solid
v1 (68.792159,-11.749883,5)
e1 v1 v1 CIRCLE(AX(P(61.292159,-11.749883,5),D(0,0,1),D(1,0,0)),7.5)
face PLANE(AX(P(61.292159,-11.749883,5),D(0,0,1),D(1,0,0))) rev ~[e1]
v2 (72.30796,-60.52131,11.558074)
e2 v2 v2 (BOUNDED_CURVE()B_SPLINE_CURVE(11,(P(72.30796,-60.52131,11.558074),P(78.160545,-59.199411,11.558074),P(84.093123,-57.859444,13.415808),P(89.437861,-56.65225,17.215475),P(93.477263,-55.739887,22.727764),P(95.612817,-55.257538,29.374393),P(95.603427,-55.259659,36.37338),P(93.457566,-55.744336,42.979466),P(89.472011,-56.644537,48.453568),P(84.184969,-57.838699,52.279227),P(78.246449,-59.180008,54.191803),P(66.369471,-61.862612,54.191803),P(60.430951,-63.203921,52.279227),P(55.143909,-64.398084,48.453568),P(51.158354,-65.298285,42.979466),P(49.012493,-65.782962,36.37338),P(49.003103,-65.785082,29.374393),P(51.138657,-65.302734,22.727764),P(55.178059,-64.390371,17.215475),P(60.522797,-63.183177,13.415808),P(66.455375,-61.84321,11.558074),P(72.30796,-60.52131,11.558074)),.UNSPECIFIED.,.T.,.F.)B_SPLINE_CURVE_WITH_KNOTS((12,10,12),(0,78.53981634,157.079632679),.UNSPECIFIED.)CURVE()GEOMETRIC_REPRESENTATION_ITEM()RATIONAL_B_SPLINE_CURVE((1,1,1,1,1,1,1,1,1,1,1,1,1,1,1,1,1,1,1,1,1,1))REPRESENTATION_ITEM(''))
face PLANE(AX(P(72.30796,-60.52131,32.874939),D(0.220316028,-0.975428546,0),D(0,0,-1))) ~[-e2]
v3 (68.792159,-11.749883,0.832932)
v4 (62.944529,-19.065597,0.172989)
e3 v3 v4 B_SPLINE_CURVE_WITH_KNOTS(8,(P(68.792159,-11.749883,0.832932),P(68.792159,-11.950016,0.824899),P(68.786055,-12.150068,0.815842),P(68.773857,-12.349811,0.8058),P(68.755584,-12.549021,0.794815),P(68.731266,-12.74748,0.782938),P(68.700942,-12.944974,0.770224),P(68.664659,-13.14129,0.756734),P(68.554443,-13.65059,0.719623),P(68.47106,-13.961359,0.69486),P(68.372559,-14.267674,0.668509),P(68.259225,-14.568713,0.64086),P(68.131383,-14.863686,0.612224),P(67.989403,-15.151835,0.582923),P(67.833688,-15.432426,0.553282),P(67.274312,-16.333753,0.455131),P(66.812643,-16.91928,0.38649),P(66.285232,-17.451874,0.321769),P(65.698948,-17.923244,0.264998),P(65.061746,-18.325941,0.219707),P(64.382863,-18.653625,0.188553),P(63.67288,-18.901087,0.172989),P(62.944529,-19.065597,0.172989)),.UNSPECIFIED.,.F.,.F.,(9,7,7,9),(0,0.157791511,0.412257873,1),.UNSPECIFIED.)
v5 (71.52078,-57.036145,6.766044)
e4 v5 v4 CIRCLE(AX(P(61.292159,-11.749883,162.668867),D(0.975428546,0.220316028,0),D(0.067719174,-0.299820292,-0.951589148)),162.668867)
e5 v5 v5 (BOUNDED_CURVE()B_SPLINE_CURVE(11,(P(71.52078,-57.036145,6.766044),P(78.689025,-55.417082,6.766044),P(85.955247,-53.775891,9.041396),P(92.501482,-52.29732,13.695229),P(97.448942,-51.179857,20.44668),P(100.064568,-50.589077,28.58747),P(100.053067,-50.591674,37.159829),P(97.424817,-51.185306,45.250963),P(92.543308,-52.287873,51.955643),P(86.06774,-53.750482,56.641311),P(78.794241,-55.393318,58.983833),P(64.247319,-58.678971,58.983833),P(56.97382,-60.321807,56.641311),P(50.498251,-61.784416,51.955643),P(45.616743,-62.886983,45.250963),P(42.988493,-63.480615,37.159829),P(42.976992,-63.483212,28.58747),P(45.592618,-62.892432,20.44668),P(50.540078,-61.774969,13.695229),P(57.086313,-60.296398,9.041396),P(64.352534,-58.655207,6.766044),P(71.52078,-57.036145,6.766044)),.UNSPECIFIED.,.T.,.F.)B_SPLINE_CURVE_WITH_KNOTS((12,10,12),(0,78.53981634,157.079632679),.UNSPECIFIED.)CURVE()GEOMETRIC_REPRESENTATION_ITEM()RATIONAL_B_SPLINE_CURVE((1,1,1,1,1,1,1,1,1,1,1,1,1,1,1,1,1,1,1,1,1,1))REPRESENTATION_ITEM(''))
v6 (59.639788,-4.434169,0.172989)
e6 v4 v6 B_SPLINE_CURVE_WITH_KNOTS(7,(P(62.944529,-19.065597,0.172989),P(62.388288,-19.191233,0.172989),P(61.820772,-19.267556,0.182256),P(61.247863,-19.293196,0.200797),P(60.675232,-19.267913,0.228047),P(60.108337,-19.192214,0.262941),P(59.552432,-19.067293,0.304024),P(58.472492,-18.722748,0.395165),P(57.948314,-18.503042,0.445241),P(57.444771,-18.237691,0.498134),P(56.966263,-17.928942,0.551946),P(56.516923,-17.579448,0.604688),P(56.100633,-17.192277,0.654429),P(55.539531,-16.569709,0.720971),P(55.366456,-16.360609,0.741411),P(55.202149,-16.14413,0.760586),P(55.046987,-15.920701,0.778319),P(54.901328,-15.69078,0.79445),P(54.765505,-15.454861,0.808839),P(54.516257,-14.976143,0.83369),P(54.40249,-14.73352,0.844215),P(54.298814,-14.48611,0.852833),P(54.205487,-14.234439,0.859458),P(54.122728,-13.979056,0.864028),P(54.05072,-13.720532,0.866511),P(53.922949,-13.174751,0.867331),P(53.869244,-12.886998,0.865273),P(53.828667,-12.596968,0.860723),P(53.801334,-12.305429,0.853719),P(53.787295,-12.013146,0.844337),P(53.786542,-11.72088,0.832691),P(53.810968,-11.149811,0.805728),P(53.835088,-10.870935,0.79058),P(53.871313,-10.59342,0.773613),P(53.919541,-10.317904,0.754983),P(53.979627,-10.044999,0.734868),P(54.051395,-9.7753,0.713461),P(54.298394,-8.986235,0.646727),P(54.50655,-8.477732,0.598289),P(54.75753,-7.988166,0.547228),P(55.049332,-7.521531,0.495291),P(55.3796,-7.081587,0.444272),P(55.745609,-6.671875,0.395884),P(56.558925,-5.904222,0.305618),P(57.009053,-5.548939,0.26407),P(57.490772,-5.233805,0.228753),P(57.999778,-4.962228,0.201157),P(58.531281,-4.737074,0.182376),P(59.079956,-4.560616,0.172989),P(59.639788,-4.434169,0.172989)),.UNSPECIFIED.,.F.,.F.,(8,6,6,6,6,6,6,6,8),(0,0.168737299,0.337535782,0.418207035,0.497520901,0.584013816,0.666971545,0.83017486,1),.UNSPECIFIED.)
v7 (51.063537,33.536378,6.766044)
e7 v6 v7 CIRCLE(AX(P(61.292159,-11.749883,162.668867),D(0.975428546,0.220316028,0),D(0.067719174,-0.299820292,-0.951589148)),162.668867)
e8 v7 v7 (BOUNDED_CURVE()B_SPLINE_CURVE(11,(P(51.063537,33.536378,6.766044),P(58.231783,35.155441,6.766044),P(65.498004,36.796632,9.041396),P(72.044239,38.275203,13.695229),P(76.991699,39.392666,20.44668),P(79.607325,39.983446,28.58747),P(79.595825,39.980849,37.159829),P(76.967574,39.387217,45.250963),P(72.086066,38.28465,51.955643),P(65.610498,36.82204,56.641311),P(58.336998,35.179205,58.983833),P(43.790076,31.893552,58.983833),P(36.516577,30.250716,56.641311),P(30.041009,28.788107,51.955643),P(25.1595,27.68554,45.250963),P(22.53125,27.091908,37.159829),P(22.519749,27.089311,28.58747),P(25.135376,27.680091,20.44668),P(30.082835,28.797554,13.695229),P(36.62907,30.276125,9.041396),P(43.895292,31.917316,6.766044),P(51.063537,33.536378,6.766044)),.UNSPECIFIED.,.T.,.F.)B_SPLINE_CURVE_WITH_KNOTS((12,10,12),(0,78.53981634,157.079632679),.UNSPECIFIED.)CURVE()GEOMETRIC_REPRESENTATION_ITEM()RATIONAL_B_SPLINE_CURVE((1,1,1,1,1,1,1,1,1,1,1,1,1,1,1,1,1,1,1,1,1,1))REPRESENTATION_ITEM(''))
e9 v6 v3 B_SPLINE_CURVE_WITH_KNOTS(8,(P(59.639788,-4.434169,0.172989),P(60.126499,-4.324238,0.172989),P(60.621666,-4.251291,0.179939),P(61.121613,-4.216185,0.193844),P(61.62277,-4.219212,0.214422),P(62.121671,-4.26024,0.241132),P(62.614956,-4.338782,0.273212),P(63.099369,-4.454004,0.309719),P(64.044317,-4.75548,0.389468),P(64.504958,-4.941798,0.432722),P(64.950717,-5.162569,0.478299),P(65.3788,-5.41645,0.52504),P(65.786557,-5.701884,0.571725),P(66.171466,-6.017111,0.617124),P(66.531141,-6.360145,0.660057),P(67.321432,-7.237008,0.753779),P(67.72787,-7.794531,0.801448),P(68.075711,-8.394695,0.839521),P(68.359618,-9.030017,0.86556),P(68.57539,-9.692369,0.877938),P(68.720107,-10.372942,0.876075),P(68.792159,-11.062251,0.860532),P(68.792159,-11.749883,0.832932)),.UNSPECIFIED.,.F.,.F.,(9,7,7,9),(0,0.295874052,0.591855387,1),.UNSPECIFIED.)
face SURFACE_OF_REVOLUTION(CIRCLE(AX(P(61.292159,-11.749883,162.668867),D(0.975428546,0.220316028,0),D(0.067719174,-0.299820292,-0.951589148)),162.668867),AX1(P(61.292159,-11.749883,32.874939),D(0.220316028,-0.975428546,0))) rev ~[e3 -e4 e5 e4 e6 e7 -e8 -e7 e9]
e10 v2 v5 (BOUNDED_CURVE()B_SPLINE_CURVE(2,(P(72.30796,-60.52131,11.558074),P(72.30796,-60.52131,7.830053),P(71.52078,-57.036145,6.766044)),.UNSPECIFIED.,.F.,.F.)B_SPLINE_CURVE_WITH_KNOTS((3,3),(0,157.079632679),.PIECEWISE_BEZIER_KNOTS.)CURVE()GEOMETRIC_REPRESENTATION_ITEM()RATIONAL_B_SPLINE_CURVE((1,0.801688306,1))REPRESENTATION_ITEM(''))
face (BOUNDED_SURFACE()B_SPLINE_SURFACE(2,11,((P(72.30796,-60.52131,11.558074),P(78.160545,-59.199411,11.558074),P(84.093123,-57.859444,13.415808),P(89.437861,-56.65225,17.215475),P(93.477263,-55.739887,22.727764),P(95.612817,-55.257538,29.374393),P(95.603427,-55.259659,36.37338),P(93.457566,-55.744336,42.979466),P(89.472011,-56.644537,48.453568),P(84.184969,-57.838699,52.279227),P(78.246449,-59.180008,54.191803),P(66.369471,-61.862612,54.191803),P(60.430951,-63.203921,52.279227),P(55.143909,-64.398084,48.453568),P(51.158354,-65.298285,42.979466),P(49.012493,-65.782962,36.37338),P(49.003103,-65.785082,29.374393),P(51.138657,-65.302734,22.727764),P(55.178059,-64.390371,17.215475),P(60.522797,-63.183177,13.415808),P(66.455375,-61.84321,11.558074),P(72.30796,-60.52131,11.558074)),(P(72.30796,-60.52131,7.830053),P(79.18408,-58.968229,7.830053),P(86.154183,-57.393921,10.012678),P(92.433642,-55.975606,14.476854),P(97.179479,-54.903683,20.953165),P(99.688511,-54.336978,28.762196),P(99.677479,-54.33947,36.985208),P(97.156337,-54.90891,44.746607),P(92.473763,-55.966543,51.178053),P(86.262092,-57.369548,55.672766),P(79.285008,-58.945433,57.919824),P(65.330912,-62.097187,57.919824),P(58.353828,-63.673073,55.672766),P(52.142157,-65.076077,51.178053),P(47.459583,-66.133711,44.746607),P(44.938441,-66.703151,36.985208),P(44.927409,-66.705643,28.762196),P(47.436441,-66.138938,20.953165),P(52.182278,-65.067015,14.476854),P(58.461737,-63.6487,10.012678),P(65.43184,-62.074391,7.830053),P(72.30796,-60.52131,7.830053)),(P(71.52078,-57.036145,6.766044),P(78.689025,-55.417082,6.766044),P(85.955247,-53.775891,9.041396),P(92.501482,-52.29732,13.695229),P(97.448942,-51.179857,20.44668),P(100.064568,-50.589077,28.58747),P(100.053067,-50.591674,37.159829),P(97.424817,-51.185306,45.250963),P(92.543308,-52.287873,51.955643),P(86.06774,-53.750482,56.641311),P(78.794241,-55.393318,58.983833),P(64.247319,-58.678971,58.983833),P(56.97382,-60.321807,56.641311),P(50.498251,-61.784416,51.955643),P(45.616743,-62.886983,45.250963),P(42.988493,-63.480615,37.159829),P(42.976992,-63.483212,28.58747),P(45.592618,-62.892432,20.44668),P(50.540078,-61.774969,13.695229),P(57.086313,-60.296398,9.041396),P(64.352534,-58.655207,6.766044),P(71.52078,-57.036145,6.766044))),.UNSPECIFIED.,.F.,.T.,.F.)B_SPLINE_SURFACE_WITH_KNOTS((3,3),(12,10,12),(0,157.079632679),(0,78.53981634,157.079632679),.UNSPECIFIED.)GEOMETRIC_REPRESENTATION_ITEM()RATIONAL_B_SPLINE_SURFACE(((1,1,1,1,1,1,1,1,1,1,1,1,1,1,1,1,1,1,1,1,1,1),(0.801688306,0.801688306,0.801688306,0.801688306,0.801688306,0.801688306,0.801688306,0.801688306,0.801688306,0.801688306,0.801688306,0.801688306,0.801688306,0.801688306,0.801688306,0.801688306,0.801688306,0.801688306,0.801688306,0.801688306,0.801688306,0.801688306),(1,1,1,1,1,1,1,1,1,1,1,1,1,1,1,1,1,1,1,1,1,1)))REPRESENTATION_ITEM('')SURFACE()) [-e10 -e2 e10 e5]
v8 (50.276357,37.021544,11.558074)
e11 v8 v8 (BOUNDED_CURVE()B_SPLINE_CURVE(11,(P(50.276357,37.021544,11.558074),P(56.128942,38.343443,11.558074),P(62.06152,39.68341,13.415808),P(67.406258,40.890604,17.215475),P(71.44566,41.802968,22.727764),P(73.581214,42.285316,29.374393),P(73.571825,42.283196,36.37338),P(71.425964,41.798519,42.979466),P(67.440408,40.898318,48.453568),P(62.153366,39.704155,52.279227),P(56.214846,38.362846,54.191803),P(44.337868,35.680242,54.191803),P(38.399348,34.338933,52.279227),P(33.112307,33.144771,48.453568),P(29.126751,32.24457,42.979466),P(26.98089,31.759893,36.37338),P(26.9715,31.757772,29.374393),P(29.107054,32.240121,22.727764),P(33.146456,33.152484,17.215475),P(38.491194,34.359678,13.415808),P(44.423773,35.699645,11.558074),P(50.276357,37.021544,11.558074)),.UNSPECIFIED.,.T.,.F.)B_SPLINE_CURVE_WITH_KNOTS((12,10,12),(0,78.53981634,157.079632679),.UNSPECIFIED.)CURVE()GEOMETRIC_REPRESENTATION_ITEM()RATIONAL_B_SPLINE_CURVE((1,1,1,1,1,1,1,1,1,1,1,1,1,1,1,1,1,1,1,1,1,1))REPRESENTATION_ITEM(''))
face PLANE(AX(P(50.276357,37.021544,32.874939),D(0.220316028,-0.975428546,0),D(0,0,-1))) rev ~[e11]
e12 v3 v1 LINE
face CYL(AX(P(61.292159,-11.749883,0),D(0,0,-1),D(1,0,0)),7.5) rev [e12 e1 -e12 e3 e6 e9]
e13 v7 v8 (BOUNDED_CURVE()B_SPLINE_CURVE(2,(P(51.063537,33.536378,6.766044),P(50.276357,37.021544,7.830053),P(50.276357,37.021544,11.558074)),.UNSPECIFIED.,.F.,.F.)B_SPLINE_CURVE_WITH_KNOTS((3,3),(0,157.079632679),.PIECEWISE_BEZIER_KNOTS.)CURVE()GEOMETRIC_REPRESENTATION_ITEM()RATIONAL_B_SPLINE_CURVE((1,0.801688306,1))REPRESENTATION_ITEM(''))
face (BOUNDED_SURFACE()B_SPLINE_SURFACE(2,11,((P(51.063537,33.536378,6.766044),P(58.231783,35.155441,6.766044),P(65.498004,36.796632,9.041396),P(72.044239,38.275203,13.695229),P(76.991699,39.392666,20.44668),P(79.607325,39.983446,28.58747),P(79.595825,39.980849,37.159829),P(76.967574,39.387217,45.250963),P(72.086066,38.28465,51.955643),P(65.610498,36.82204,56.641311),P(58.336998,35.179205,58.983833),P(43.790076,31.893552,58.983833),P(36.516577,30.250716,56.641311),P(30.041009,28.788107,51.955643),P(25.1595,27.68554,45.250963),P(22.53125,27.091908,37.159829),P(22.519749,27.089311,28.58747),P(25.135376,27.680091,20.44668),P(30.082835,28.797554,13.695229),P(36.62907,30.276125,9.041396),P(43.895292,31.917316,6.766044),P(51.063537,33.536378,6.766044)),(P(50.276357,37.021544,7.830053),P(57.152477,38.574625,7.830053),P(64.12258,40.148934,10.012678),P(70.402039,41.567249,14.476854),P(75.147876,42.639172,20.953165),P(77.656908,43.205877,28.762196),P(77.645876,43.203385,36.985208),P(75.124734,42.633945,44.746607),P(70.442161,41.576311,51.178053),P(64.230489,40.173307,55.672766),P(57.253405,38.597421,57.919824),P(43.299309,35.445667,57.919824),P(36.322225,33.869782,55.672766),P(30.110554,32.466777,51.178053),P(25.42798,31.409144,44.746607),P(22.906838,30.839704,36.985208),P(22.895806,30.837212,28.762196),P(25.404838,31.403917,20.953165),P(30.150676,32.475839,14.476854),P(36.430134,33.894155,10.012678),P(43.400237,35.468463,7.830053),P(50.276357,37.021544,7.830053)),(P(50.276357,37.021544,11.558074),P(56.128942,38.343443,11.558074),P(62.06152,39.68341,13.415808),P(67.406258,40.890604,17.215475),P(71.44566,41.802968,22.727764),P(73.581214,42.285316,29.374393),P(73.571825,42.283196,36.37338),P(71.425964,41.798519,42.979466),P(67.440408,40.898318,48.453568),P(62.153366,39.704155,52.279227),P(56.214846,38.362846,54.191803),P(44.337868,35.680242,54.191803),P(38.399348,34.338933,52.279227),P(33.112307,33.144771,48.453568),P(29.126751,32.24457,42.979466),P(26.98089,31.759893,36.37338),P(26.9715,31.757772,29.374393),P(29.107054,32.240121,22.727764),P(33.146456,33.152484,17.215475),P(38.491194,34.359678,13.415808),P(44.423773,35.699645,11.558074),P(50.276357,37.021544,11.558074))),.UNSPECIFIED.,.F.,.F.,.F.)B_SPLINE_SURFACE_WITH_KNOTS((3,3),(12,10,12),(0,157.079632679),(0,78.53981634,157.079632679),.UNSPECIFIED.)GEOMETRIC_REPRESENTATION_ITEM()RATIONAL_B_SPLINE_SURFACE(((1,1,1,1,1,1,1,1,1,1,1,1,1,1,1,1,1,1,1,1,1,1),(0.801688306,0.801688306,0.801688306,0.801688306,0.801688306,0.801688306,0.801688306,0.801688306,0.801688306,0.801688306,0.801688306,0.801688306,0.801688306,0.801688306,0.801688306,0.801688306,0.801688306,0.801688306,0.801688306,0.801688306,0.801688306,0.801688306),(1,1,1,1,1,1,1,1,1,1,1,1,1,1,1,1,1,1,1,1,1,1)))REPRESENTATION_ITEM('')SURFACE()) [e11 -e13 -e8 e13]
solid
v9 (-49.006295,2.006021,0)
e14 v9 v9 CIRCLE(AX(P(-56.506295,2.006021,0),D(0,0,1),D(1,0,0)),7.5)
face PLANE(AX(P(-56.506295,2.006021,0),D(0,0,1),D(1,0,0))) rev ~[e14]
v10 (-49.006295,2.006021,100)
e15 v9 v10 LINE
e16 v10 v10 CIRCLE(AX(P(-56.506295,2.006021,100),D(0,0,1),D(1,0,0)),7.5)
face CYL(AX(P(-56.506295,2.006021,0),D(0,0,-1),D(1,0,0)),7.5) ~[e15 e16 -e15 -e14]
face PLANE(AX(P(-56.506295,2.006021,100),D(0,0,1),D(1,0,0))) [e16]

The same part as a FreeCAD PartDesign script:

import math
import FreeCAD as App
import Part
import Sketcher
from FreeCAD import Vector


def edges_at(feature, points):
    """Names of the edges that pass closest to the given points."""
    edges = feature.Shape.Edges
    near = lambda p: min(range(len(edges)), key=lambda i: edges[i].distToShape(Part.Vertex(*p))[0])
    return sorted({f"Edge{near(p) + 1}" for p in points})

doc = App.newDocument("Part")
body = doc.addObject("PartDesign::Body", "Body")

sketch1 = body.newObject("Sketcher::SketchObject", "Sketch")
sketch1.AttachmentSupport = (doc.getObject("XY_Plane"), [""])
sketch1.MapMode = "FlatFace"
sketch1.addGeometry(Part.Circle(Vector(-57, 2, 0), Vector(0, 0, 1), 8), False)
sketch1.addConstraint([
    Sketcher.Constraint("Diameter", 0, 15.0),
    Sketcher.Constraint("DistanceY", -1, 1, 0, 3, 2.006021),
    Sketcher.Constraint("DistanceX", 0, 3, -1, 1, 56.506295),
])
pad1 = body.newObject("PartDesign::Pad", "Pad")
pad1.Profile = sketch1
pad1.Length = 100
body2 = doc.addObject("PartDesign::Body", "Body001")

sketch2 = body2.newObject("Sketcher::SketchObject", "Sketch001")
sketch2.Placement = App.Placement(Vector(55.792009, 12.601511, 0), App.Rotation(Vector(-0.220316028, 0.975428546, 0), Vector(0, 0, 1.000000001), Vector(0.975428546, 0.220316028, 0), "ZXY"))
sketch2.addGeometry([
    Part.LineSegment(Vector(-75, 33, 0), Vector(-75, 8, 0)),
    Part.ArcOfCircle(Part.Circle(Vector(-25, 163, 0), Vector(0, 0, 1), 163), math.radians(-108), math.radians(-72)),
    Part.LineSegment(Vector(25, 8, 0), Vector(25, 33, 0)),
    Part.LineSegment(Vector(25, 33, 0), Vector(-75, 33, 0)),
], False)
sketch2.addGeometry(Part.LineSegment(Vector(25, 33, 0), Vector(-75, 33, 0)), True)
sketch2.addConstraint([
    Sketcher.Constraint("Coincident", 0, 2, 1, 1),
    Sketcher.Constraint("Coincident", 1, 2, 2, 1),
    Sketcher.Constraint("Coincident", 2, 2, 3, 1),
    Sketcher.Constraint("Coincident", 3, 2, 0, 1),
    Sketcher.Constraint("Vertical", 0),
    Sketcher.Constraint("Vertical", 2),
    Sketcher.Constraint("Horizontal", 3),
    Sketcher.Constraint("Horizontal", 4),
    Sketcher.Constraint("Coincident", 4, 1, 2, 2),
    Sketcher.Constraint("Horizontal", 0, 2, 1, 2),
    Sketcher.Constraint("Vertical", 0, 2, 4, 2),
    Sketcher.Constraint("DistanceX", 3, 2, 3, 1, 100.0),
    Sketcher.Constraint("DistanceY", 0, 2, 0, 1, 25.0),
    Sketcher.Constraint("Radius", 1, 162.668867),
    Sketcher.Constraint("DistanceY", -1, 1, 0, 2, 7.874939),
    Sketcher.Constraint("DistanceX", 1, 3, -1, 1, 24.964816),
])
revolution = body2.newObject("PartDesign::Revolution", "Revolution")
revolution.Profile = sketch2
revolution.ReferenceAxis = (sketch2, ["Axis0"])
revolution.Angle = 360

sketch3 = body2.newObject("Sketcher::SketchObject", "Sketch002")
sketch3.AttachmentSupport = (doc.getObject("XY_Plane001"), [""])
sketch3.MapMode = "FlatFace"
sketch3.addGeometry(Part.Circle(Vector(61, -12, 0), Vector(0, 0, 1), 8), False)
sketch3.addConstraint([
    Sketcher.Constraint("Diameter", 0, 15.0),
    Sketcher.Constraint("DistanceX", -1, 1, 0, 3, 61.292159),
    Sketcher.Constraint("DistanceY", 0, 3, -1, 1, 11.749883),
])
pocket1 = body2.newObject("PartDesign::Pocket", "Pocket")
pocket1.Profile = sketch3
pocket1.Length = 5
pocket1.Reversed = True
doc.recompute()

fillet = body2.newObject("PartDesign::Fillet", "Fillet")
fillet.Base = (pocket1, edges_at(pocket1, [(72.308, -60.521, 57.875), (50.276, 37.022, 57.875)]))
fillet.Radius = 5

doc.recompute()
